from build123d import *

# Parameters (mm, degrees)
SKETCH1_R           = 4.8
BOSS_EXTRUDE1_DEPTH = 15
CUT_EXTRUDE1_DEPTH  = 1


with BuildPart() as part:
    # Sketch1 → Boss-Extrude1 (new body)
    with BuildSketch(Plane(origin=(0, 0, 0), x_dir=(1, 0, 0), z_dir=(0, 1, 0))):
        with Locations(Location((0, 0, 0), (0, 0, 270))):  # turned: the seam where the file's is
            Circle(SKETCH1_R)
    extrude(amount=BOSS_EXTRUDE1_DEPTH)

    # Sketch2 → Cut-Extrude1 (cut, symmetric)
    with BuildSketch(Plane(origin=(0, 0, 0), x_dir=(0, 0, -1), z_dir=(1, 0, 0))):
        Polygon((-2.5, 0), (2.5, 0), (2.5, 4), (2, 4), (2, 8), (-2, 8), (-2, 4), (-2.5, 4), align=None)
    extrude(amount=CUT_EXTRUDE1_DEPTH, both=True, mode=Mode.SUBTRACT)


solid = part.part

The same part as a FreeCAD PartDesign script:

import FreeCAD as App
import Part
import Sketcher
from FreeCAD import Vector
Q = App.Units.Quantity


def add_polygon(sketch, points):
    """Adds a closed chain of lines whose ends are joined by coincident constraints."""
    first, n = sketch.GeometryCount, len(points)
    for a, b in zip(points, points[1:] + points[:1]):
        sketch.addGeometry(Part.LineSegment(App.Vector(*a, 0), App.Vector(*b, 0)), False)
    for i in range(n):
        sketch.addConstraint(Sketcher.Constraint("Coincident", first + i, 2, first + (i + 1) % n, 1))

doc = App.newDocument("Part")
body = doc.addObject("PartDesign::Body", "Body")

# Sketch on XZ plane
sketch1 = doc.addObject("Sketcher::SketchObject", "Sketch")
body.addObject(sketch1)
sketch1.AttachmentSupport = (doc.XZ_Plane, [""])
sketch1.MapMode = "FlatFace"
sketch1.addGeometry(Part.Circle(Vector(0, 0, 0), Vector(0, 0, 1), 4.8), False)
sketch1.addConstraint([
    Sketcher.Constraint("Coincident", 0, 3, -1, 1),
    Sketcher.Constraint("Diameter", 0, Q("9.6 mm")),
])
pad1 = doc.addObject("PartDesign::Pad", "Pad")
body.addObject(pad1)
pad1.Profile = sketch1
pad1.Length = 15
pad1.Reversed = True

# Sketch on YZ plane
sketch2 = doc.addObject("Sketcher::SketchObject", "Sketch001")
body.addObject(sketch2)
sketch2.AttachmentSupport = (doc.YZ_Plane, [""])
sketch2.MapMode = "FlatFace"
add_polygon(sketch2, [(0, 2.5), (0, -2.5), (4, -2.5), (4, -2), (8, -2), (8, 2), (4, 2), (4, 2.5)])  # lines 0-7
sketch2.addConstraint([
    Sketcher.Constraint("Vertical", 0),
    Sketcher.Constraint("Horizontal", 1),
    Sketcher.Constraint("Vertical", 2),
    Sketcher.Constraint("Horizontal", 3),
    Sketcher.Constraint("Vertical", 4),
    Sketcher.Constraint("Horizontal", 5),
    Sketcher.Constraint("Vertical", 6),
    Sketcher.Constraint("Horizontal", 7),
    Sketcher.Constraint("Symmetric", 0, 2, 7, 2, -1, 1),
    Sketcher.Constraint("Symmetric", 2, 2, 5, 2, -1),
    Sketcher.Constraint("Equal", 1, 3),
    Sketcher.Constraint("Equal", 7, 4),
    Sketcher.Constraint("DistanceX", 1, 1, 1, 2, Q("4 mm")),
    Sketcher.Constraint("DistanceY", 0, 2, 0, 1, Q("5 mm")),
])
pocket1 = doc.addObject("PartDesign::Pocket", "Pocket")
body.addObject(pocket1)
pocket1.Profile = sketch2
pocket1.Length = 2
pocket1.Midplane = True

doc.recompute()
